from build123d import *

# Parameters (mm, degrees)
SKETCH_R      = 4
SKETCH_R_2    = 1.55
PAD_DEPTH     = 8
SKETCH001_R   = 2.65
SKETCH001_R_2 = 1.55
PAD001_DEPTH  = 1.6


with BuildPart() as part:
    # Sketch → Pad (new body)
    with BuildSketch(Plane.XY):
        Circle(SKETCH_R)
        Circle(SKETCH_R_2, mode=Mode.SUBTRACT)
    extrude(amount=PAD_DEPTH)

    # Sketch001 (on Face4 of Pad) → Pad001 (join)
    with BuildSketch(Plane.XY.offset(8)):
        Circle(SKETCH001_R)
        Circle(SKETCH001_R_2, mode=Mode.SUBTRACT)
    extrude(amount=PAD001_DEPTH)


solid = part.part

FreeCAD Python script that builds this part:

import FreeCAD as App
import Part
import Sketcher
from FreeCAD import Vector
Q = App.Units.Quantity

doc = App.newDocument("Part")
body = doc.addObject("PartDesign::Body", "Body")

sketch1 = body.newObject("Sketcher::SketchObject", "Sketch")
sketch1.AttachmentSupport = (doc.getObject("XY_Plane"), [""])
sketch1.MapMode = "FlatFace"
sketch1.addGeometry(Part.Circle(Vector(0, 0, 0), Vector(0, 0, 1), 4), False)
sketch1.addGeometry(Part.Circle(Vector(0, 0, 0), Vector(0, 0, 1), 1.6), False)
sketch1.addConstraint(Sketcher.Constraint("Coincident", 0, 3, -1, 1))
sketch1.addConstraint(Sketcher.Constraint("Coincident", 1, 3, -1, 1))
sketch1.addConstraint(Sketcher.Constraint("Diameter", 0, Q("8 mm")))
sketch1.addConstraint(Sketcher.Constraint("Diameter", 1, Q("3.1 mm")))
pad1 = body.newObject("PartDesign::Pad", "Pad")
pad1.Profile = sketch1
pad1.Length = 8

sketch2 = body.newObject("Sketcher::SketchObject", "Sketch001")
sketch2.AttachmentSupport = (doc.getObject("XY_Plane"), [""])
sketch2.MapMode = "FlatFace"
sketch2.AttachmentOffset = App.Placement(Vector(0, 0, 8), App.Rotation())
sketch2.addGeometry(Part.Circle(Vector(0, 0, 0), Vector(0, 0, 1), 2.6), False)
sketch2.addGeometry(Part.Circle(Vector(0, 0, 0), Vector(0, 0, 1), 1.6), False)
sketch2.addConstraint(Sketcher.Constraint("Coincident", 0, 3, -1, 1))
sketch2.addConstraint(Sketcher.Constraint("Coincident", 1, 3, -1, 1))
sketch2.addConstraint(Sketcher.Constraint("Diameter", 0, Q("5.3 mm")))
sketch2.addConstraint(Sketcher.Constraint("Diameter", 1, Q("3.1 mm")))
pad2 = body.newObject("PartDesign::Pad", "Pad001")
pad2.Profile = sketch2
pad2.Length = 1.6

doc.recompute()
